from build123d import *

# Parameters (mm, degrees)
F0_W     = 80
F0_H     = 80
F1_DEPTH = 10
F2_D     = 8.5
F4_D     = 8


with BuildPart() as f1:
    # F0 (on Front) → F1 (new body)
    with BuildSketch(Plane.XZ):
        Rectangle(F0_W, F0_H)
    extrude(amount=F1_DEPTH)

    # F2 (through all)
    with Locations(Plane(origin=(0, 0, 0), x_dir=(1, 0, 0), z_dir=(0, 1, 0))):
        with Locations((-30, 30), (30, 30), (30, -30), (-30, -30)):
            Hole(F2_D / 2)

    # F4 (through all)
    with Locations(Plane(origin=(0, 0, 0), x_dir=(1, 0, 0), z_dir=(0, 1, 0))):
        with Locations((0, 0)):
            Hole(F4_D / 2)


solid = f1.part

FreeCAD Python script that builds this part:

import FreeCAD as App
import Part
import Sketcher
from FreeCAD import Vector
Q = App.Units.Quantity


def add_polygon(sketch, points):
    """Adds a closed chain of lines whose ends are joined by coincident constraints."""
    first, n = sketch.GeometryCount, len(points)
    for a, b in zip(points, points[1:] + points[:1]):
        sketch.addGeometry(Part.LineSegment(App.Vector(*a, 0), App.Vector(*b, 0)), False)
    for i in range(n):
        sketch.addConstraint(Sketcher.Constraint("Coincident", first + i, 2, first + (i + 1) % n, 1))

doc = App.newDocument("Part")
params = doc.addObject("Spreadsheet::Sheet", "Params")
for row, (alias, value) in enumerate([
    ("sketch1_width", "80 mm"),
    ("pad1_length", "10 mm"),
    ("sketch2_diameter", "8.5 mm"),
    ("hole_diameter", "8.5 mm"),
    ("sketch3_diameter", "8 mm"),
    ("hole2_diameter", "8 mm"),
], start=1):
    params.set(f"A{row}", alias)
    params.set(f"B{row}", "=" + value)
    params.setAlias(f"B{row}", alias)

body = doc.addObject("PartDesign::Body", "Body")

sketch1 = doc.addObject("Sketcher::SketchObject", "Sketch")
body.addObject(sketch1)
sketch1.AttachmentSupport = (doc.XZ_Plane, [""])
sketch1.MapMode = "FlatFace"
add_polygon(sketch1, [(-40, 40), (-40, -40), (40, -40), (40, 40)])
sketch1.addConstraint([
    Sketcher.Constraint("Vertical", 0),
    Sketcher.Constraint("Horizontal", 1),
    Sketcher.Constraint("Vertical", 2),
    Sketcher.Constraint("Horizontal", 3),
    Sketcher.Constraint("Symmetric", 0, 2, 2, 2, -1, 1),
    Sketcher.Constraint("Equal", 3, 0),
    Sketcher.Constraint("DistanceX", 1, 1, 1, 2, Q("80 mm")),
])
sketch1.setExpression("Constraints[10]", "Params.sketch1_width")
pad1 = doc.addObject("PartDesign::Pad", "Pad")
body.addObject(pad1)
pad1.Profile = sketch1
pad1.setExpression("Length", "Params.pad1_length")

sketch2 = doc.addObject("Sketcher::SketchObject", "Sketch001")
body.addObject(sketch2)
sketch2.AttachmentSupport = (doc.XZ_Plane, [""])
sketch2.MapMode = "FlatFace"
sketch2.addGeometry([
    Part.Circle(Vector(-30, -30, 0), Vector(0, 0, 1), 4.25),
    Part.Circle(Vector(30, -30, 0), Vector(0, 0, 1), 4.25),
    Part.Circle(Vector(30, 30, 0), Vector(0, 0, 1), 4.25),
    Part.Circle(Vector(-30, 30, 0), Vector(0, 0, 1), 4.25),
], False)
sketch2.addConstraint([
    Sketcher.Constraint("Equal", 0, 1),
    Sketcher.Constraint("Equal", 1, 2),
    Sketcher.Constraint("Equal", 2, 3),
    Sketcher.Constraint("Symmetric", 0, 3, 2, 3, -1, 1),
    Sketcher.Constraint("Symmetric", 1, 3, 3, 3, -1, 1),
    Sketcher.Constraint("Symmetric", 0, 3, 1, 3, -2),
    Sketcher.Constraint("Diameter", 0, Q("8.5 mm")),
    Sketcher.Constraint("DistanceX", 0, 3, -1, 1, Q("30 mm")),
    Sketcher.Constraint("DistanceY", 0, 3, -1, 1, Q("30 mm")),
])
sketch2.setExpression("Constraints[6]", "Params.sketch2_diameter")
doc.recompute()
hole = doc.addObject("PartDesign::Hole", "Hole")
body.addObject(hole)
hole.Profile = sketch2
hole.ThreadType = "None"
hole.setExpression("Diameter", "Params.hole_diameter")
hole.DepthType = "ThroughAll"
hole.Reversed = True

sketch3 = doc.addObject("Sketcher::SketchObject", "Sketch002")
body.addObject(sketch3)
sketch3.AttachmentSupport = (doc.XZ_Plane, [""])
sketch3.MapMode = "FlatFace"
sketch3.addGeometry(Part.Circle(Vector(0, 0, 0), Vector(0, 0, 1), 4), False)
sketch3.addConstraint([
    Sketcher.Constraint("Coincident", 0, 3, -1, 1),
    Sketcher.Constraint("Diameter", 0, Q("8 mm")),
])
sketch3.setExpression("Constraints[1]", "Params.sketch3_diameter")
doc.recompute()
hole2 = doc.addObject("PartDesign::Hole", "Hole001")
body.addObject(hole2)
hole2.Profile = sketch3
hole2.ThreadType = "None"
hole2.setExpression("Diameter", "Params.hole2_diameter")
hole2.DepthType = "ThroughAll"
hole2.Reversed = True

doc.recompute()
